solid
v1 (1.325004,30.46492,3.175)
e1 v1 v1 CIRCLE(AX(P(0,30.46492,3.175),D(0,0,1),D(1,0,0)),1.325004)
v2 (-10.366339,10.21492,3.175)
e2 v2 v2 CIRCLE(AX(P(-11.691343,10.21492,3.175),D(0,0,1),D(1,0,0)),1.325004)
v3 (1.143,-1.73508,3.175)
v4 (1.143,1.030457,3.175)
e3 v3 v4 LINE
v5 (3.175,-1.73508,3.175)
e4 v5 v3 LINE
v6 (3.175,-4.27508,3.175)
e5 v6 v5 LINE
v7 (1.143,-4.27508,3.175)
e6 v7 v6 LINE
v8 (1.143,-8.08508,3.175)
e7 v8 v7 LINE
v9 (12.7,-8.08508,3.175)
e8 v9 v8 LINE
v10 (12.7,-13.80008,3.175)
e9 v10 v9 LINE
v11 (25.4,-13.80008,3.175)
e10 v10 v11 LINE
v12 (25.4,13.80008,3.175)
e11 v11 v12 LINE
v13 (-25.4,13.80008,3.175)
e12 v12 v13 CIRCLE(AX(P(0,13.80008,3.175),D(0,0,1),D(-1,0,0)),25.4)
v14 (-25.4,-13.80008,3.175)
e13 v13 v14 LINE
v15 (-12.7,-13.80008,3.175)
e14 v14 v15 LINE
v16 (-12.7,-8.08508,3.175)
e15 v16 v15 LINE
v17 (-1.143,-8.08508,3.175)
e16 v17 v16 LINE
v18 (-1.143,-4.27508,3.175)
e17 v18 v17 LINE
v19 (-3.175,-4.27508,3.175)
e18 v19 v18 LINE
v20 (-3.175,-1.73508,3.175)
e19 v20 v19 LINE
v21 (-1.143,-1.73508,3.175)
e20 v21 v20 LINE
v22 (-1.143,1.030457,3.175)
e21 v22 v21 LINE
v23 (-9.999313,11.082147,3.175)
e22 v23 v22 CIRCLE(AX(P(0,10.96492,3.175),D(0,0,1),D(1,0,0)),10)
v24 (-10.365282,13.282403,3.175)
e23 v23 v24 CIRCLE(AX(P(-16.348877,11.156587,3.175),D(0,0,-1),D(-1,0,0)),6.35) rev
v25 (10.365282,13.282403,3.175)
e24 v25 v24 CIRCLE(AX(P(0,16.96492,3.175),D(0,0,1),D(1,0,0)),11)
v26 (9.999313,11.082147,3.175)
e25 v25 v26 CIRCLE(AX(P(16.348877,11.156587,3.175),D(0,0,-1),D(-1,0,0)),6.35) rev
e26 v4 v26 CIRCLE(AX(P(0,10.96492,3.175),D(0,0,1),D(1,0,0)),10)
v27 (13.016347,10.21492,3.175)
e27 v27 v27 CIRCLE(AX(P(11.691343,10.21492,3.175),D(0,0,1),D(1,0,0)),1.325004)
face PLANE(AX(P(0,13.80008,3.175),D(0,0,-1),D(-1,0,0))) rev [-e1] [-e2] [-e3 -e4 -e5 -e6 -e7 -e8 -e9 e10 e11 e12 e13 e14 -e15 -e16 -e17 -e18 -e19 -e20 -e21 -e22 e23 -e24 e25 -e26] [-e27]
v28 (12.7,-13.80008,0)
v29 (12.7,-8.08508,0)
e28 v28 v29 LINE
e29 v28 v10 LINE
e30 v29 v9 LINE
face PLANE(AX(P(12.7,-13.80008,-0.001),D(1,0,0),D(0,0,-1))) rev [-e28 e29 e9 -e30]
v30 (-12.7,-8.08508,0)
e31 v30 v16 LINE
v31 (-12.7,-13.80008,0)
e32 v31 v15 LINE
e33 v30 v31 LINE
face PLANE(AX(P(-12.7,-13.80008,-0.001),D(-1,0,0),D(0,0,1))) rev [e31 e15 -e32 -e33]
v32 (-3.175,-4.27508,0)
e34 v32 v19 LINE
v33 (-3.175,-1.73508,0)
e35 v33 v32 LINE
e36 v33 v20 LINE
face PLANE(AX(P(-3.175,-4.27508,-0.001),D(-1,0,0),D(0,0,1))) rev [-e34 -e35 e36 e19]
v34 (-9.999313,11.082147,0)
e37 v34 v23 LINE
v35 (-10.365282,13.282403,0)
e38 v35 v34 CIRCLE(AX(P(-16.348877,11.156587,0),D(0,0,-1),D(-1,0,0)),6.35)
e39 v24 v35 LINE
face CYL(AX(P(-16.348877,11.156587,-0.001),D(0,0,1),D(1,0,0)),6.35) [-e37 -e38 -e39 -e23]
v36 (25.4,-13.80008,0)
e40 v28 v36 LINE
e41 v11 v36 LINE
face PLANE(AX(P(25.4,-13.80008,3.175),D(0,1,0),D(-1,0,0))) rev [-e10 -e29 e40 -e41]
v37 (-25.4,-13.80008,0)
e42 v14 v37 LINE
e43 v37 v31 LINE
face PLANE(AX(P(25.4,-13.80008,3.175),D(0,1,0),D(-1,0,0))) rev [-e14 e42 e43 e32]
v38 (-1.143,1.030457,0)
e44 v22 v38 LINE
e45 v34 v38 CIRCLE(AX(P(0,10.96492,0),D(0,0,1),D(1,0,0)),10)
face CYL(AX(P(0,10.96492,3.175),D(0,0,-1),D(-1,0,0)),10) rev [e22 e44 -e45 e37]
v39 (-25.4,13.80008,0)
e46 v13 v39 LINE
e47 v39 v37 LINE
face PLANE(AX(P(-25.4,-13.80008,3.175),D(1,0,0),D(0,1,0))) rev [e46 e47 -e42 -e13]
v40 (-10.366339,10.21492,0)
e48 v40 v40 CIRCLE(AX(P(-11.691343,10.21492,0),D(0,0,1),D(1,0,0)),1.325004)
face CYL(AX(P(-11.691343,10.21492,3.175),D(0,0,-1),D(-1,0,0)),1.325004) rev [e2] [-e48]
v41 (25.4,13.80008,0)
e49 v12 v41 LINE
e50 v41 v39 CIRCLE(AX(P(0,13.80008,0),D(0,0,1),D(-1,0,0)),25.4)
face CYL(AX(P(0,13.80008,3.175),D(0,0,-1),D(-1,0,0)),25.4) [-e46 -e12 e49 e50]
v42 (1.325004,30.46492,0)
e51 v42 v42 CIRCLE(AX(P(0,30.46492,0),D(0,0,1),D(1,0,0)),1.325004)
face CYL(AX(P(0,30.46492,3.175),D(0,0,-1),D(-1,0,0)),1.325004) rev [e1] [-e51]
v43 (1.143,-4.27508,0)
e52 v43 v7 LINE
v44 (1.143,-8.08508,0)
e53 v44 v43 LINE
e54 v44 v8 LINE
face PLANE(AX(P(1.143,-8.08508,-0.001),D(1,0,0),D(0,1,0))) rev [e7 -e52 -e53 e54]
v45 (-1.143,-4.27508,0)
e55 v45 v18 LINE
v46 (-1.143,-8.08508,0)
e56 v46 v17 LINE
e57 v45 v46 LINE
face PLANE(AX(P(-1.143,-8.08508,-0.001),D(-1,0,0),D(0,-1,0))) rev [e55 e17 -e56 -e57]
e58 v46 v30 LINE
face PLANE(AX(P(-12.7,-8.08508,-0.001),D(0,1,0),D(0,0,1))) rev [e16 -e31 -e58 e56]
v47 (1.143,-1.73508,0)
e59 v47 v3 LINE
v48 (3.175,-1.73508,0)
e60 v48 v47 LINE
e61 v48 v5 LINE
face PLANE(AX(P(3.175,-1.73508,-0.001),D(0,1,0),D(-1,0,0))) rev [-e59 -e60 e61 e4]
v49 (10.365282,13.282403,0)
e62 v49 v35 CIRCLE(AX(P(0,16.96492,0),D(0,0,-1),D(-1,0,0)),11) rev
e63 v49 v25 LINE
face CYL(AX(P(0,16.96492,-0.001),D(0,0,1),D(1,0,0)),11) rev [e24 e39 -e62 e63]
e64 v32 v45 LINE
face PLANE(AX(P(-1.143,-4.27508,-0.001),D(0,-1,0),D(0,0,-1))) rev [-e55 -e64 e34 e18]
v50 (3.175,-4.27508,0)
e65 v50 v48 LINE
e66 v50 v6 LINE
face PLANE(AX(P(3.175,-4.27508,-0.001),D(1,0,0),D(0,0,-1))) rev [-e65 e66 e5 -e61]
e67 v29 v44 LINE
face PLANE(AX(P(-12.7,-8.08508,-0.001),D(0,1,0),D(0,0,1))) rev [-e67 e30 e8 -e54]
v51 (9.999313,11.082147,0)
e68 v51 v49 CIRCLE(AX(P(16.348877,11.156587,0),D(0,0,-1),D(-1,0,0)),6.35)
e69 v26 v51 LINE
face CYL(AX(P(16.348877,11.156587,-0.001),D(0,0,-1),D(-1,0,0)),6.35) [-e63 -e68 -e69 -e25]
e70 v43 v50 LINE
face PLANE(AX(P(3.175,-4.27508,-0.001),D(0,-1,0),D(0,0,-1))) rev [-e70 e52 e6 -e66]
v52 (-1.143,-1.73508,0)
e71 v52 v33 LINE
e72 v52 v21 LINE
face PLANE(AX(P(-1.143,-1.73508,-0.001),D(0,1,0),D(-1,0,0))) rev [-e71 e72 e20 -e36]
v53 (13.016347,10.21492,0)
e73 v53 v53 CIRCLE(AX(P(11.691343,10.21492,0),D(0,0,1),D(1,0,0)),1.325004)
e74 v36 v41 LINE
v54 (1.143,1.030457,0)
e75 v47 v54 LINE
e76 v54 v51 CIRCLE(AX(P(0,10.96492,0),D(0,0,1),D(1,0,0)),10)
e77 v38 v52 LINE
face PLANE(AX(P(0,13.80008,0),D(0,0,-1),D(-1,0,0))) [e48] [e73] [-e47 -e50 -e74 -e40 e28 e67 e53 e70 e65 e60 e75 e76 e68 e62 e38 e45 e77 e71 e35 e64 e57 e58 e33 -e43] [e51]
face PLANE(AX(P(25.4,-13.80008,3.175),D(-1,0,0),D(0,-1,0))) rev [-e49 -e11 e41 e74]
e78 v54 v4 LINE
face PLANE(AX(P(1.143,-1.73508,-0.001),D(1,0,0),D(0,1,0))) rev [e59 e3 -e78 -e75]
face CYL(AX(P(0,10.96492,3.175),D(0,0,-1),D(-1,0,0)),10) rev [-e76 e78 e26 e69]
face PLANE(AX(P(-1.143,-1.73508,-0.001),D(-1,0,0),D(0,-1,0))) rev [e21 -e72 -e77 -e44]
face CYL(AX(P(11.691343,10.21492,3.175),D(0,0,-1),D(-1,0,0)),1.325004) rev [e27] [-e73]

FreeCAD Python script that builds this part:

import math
import FreeCAD as App
import Part
import Sketcher
Q = App.Units.Quantity


def edges_at(feature, points):
    """Names of the edges that pass closest to the given points."""
    edges = feature.Shape.Edges
    near = lambda p: min(range(len(edges)), key=lambda i: edges[i].distToShape(Part.Vertex(*p))[0])
    return sorted({f"Edge{near(p) + 1}" for p in points})


def add_polygon(sketch, points):
    """Adds a closed chain of lines whose ends are joined by coincident constraints."""
    first, n = sketch.GeometryCount, len(points)
    for a, b in zip(points, points[1:] + points[:1]):
        sketch.addGeometry(Part.LineSegment(App.Vector(*a, 0), App.Vector(*b, 0)), False)
    for i in range(n):
        sketch.addConstraint(Sketcher.Constraint("Coincident", first + i, 2, first + (i + 1) % n, 1))

doc = App.newDocument("Part")
params = doc.addObject("Spreadsheet::Sheet", "Params")
for row, (alias, value) in enumerate([
    ("sketch1_radius", "1 in"),
    ("pad1_length", "0.125 in"),
    ("sketch3_width", "1 in"),
    ("sketch3_height", "0.225 in"),
    ("sketch4_height", "0.1 in"),
    ("sketch4_width", "0.08 in"),
    ("sketch4_width2", "0.09 in"),
    ("sketch4_height2", "0.35 in"),
    ("sketch4_height3", "0.15 in"),
    ("fillet_radius", "0.25 in"),
], start=1):
    params.set(f"A{row}", alias)
    params.set(f"B{row}", "=" + value)
    params.setAlias(f"B{row}", alias)

body = doc.addObject("PartDesign::Body", "Body")

# Sketch on XY plane
sketch1 = body.newObject("Sketcher::SketchObject", "Sketch")
sketch1.AttachmentSupport = (doc.getObject("XY_Plane"), [""])
sketch1.MapMode = "FlatFace"
sketch1.addGeometry([
    Part.LineSegment(App.Vector(-25, -14, 0), App.Vector(25, -14, 0)),
    Part.LineSegment(App.Vector(25, -14, 0), App.Vector(25, 14, 0)),
    Part.ArcOfCircle(Part.Circle(App.Vector(0, 14, 0), App.Vector(0, 0, 1), 25), math.radians(0), math.radians(180)),
    Part.LineSegment(App.Vector(-25, 14, 0), App.Vector(-25, -14, 0)),
], False)
sketch1.addConstraint([
    Sketcher.Constraint("Coincident", 0, 2, 1, 1),
    Sketcher.Constraint("Tangent", 1, 2, 2, 1),
    Sketcher.Constraint("Tangent", 2, 2, 3, 1),
    Sketcher.Constraint("Coincident", 3, 2, 0, 1),
    Sketcher.Constraint("Horizontal", 0),
    Sketcher.Constraint("Vertical", 1),
    Sketcher.Constraint("Vertical", 3),
    Sketcher.Constraint("Symmetric", 0, 2, 2, 2, -1, 1),
    Sketcher.Constraint("Radius", 2, Q("1 in")),
    Sketcher.Constraint("DistanceY", 1, 1, 1, 2, Q("27.60016 mm")),
])
sketch1.setExpression("Constraints[8]", "Params.sketch1_radius")
pad1 = body.newObject("PartDesign::Pad", "Pad")
pad1.Profile = sketch1
pad1.setExpression("Length", "Params.pad1_length")

# Sketch on XY plane
sketch2 = body.newObject("Sketcher::SketchObject", "Sketch001")
sketch2.AttachmentSupport = (doc.getObject("XY_Plane"), [""])
sketch2.MapMode = "FlatFace"
sketch2.AttachmentOffset = App.Placement(App.Vector(0, 0, 0.125 * 25.4), App.Rotation())
sketch2.addGeometry(Part.Circle(App.Vector(0, 17, 0), App.Vector(0, 0, 1), 11), False)
sketch2.addConstraint([
    Sketcher.Constraint("PointOnObject", 0, 3, -2),
    Sketcher.Constraint("Diameter", 0, Q("22 mm")),
    Sketcher.Constraint("DistanceY", -1, 1, 0, 3, Q("16.96492 mm")),
])
pocket1 = body.newObject("PartDesign::Pocket", "Pocket")
pocket1.Profile = sketch2
pocket1.Type = "UpToFirst"

# Sketch on XY plane
sketch3 = body.newObject("Sketcher::SketchObject", "Sketch002")
sketch3.AttachmentSupport = (doc.getObject("XY_Plane"), [""])
sketch3.MapMode = "FlatFace"
sketch3.AttachmentOffset = App.Placement(App.Vector(0, 0, 0.125 * 25.4), App.Rotation())
add_polygon(sketch3, [(-13, -8), (-13, -14), (13, -14), (13, -8)])  # lines 0-3
sketch3.addConstraint([
    Sketcher.Constraint("Vertical", 0),
    Sketcher.Constraint("Horizontal", 1),
    Sketcher.Constraint("Vertical", 2),
    Sketcher.Constraint("Horizontal", 3),
    Sketcher.Constraint("DistanceX", 1, 1, 1, 2, Q("1 in")),
    Sketcher.Constraint("DistanceX", 0, 2, -1, 1, Q("0.5 in")),
    Sketcher.Constraint("DistanceY", 0, 2, 0, 1, Q("0.225 in")),
    Sketcher.Constraint("DistanceY", 0, 2, -1, 1, Q("13.80008 mm")),
])
sketch3.setExpression("Constraints[8]", "Params.sketch3_width")
sketch3.setExpression("Constraints[10]", "Params.sketch3_height")
pocket2 = body.newObject("PartDesign::Pocket", "Pocket001")
pocket2.Profile = sketch3
pocket2.Type = "UpToFirst"

# Sketch on XY plane
sketch4 = body.newObject("Sketcher::SketchObject", "Sketch003")
sketch4.AttachmentSupport = (doc.getObject("XY_Plane"), [""])
sketch4.MapMode = "FlatFace"
sketch4.AttachmentOffset = App.Placement(App.Vector(0, 0, 0.125 * 25.4), App.Rotation())
add_polygon(sketch4, [(1.1, -4.3), (3.2, -4.3), (3.2, -1.7), (1.1, -1.7), (1.1, 7.2), (-1.1, 7.2), (-1.1, -1.7), (-3.2, -1.7), (-3.2, -4.3), (-1.1, -4.3), (-1.1, -8.1), (1.1, -8.1)])  # lines 0-11
sketch4.addConstraint([
    Sketcher.Constraint("Horizontal", 0),
    Sketcher.Constraint("Vertical", 1),
    Sketcher.Constraint("Horizontal", 2),
    Sketcher.Constraint("Vertical", 3),
    Sketcher.Constraint("Horizontal", 4),
    Sketcher.Constraint("Vertical", 5),
    Sketcher.Constraint("Horizontal", 6),
    Sketcher.Constraint("Vertical", 7),
    Sketcher.Constraint("Horizontal", 8),
    Sketcher.Constraint("Vertical", 9),
    Sketcher.Constraint("Horizontal", 10),
    Sketcher.Constraint("Vertical", 11),
    Sketcher.Constraint("Symmetric", 2, 2, 5, 2, -2),
    Sketcher.Constraint("Symmetric", 0, 2, 7, 2, -2),
    Sketcher.Constraint("Vertical", 5, 2, 8, 2),
    Sketcher.Constraint("Vertical", 3, 2, 10, 2),
    Sketcher.Constraint("DistanceY", 1, 1, 1, 2, Q("0.1 in")),
    Sketcher.Constraint("DistanceX", 0, 1, 0, 2, Q("0.08 in")),
    Sketcher.Constraint("DistanceX", 4, 2, 4, 1, Q("0.09 in")),
    Sketcher.Constraint("DistanceY", 3, 1, 3, 2, Q("0.35 in")),
    Sketcher.Constraint("DistanceY", 9, 2, 9, 1, Q("0.15 in")),
    Sketcher.Constraint("DistanceY", 0, 2, -1, 1, Q("4.27508 mm")),
])
sketch4.setExpression("Constraints[28]", "Params.sketch4_height")
sketch4.setExpression("Constraints[29]", "Params.sketch4_width")
sketch4.setExpression("Constraints[30]", "Params.sketch4_width2")
sketch4.setExpression("Constraints[31]", "Params.sketch4_height2")
sketch4.setExpression("Constraints[32]", "Params.sketch4_height3")
pocket3 = body.newObject("PartDesign::Pocket", "Pocket002")
pocket3.Profile = sketch4
pocket3.Type = "UpToFirst"

# Sketch on XY plane
sketch5 = body.newObject("Sketcher::SketchObject", "Sketch004")
sketch5.AttachmentSupport = (doc.getObject("XY_Plane"), [""])
sketch5.MapMode = "FlatFace"
sketch5.addGeometry([
    Part.Circle(App.Vector(0, 30.5, 0), App.Vector(0, 0, 1), 1.3),
    Part.Circle(App.Vector(11.7, 10.2, 0), App.Vector(0, 0, 1), 1.3),
    Part.Circle(App.Vector(-11.7, 10.2, 0), App.Vector(0, 0, 1), 1.3),
], False)
sketch5.addConstraint([
    Sketcher.Constraint("Equal", 0, 1),
    Sketcher.Constraint("Equal", 1, 2),
    Sketcher.Constraint("Symmetric", 1, 3, 2, 3, -2),
    Sketcher.Constraint("PointOnObject", 0, 3, -2),
    Sketcher.Constraint("Diameter", 0, Q("2.650007 mm")),
    Sketcher.Constraint("DistanceY", 1, 3, 0, 3, Q("20.25 mm")),
    Sketcher.Constraint("DistanceY", -1, 1, 0, 3, Q("30.46492 mm")),
    Sketcher.Constraint("DistanceX", -1, 1, 1, 3, Q("11.691343 mm")),
])
pocket4 = body.newObject("PartDesign::Pocket", "Pocket003")
pocket4.Profile = sketch5
pocket4.Type = "ThroughAll"
pocket4.Reversed = True

# Sketch on XY plane
sketch6 = body.newObject("Sketcher::SketchObject", "Sketch005")
sketch6.AttachmentSupport = (doc.getObject("XY_Plane"), [""])
sketch6.MapMode = "FlatFace"
sketch6.addGeometry(Part.Circle(App.Vector(0, 11, 0), App.Vector(0, 0, 1), 10), False)
sketch6.addConstraint([
    Sketcher.Constraint("PointOnObject", 0, 3, -2),
    Sketcher.Constraint("Diameter", 0, Q("20 mm")),
    Sketcher.Constraint("DistanceY", -1, 1, 0, 3, Q("10.96492 mm")),
])
pocket5 = body.newObject("PartDesign::Pocket", "Pocket004")
pocket5.Profile = sketch6
pocket5.Type = "ThroughAll"
pocket5.Reversed = True
doc.recompute()

fillet = body.newObject("PartDesign::Fillet", "Fillet")
fillet.Base = (pocket5, edges_at(pocket5, [(9.922, 12.215, 1.587), (-9.922, 12.215, 1.587)]))
fillet.setExpression("Radius", "Params.fillet_radius")

doc.recompute()
